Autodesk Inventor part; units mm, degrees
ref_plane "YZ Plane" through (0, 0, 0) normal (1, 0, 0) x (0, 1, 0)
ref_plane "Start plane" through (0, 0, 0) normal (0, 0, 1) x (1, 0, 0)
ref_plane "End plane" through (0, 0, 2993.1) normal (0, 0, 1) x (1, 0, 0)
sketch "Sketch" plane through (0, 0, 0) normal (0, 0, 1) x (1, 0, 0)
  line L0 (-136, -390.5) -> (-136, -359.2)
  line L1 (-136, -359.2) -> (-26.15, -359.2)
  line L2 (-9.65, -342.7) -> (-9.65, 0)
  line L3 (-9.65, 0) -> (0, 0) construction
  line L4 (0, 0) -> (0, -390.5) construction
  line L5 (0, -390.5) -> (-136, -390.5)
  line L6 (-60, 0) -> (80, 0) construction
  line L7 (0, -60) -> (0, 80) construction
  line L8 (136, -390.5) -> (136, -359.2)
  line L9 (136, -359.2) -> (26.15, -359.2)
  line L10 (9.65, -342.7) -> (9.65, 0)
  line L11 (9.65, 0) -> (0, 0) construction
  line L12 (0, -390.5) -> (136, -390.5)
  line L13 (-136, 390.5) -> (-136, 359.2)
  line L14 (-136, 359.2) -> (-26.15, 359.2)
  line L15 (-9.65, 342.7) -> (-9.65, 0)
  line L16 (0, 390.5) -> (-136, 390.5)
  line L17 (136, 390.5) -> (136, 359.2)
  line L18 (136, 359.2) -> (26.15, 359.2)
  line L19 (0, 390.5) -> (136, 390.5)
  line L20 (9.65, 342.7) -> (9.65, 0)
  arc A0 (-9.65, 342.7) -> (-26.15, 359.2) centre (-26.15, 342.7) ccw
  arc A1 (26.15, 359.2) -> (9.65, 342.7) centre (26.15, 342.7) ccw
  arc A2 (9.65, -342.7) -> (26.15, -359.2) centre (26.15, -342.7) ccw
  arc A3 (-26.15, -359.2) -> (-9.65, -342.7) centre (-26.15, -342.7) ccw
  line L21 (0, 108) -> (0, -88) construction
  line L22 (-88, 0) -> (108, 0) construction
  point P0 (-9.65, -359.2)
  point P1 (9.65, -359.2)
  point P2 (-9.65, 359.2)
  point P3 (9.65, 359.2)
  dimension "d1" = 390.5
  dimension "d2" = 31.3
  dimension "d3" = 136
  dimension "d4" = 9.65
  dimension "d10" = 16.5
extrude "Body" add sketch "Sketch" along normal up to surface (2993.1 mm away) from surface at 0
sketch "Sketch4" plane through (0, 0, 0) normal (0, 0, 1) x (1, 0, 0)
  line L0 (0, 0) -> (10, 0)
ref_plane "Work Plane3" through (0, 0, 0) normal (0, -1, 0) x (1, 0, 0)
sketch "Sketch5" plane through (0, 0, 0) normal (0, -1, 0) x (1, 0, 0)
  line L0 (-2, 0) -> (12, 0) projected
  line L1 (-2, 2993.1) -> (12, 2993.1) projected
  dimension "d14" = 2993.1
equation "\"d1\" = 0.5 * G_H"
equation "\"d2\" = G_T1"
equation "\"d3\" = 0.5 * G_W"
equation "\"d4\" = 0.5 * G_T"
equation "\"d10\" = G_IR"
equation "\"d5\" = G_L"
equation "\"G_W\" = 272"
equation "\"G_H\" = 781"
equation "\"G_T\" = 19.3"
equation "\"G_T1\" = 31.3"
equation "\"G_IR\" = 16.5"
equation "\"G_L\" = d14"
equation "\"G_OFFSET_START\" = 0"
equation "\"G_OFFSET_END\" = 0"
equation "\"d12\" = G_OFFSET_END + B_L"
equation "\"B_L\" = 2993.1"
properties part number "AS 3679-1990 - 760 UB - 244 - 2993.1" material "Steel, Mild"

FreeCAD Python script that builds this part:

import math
import FreeCAD as App
import Part
import Sketcher
from FreeCAD import Vector
Q = App.Units.Quantity

doc = App.newDocument("Part")
body = doc.addObject("PartDesign::Body", "Body")

# Sketch on XY plane
sketch1 = body.newObject("Sketcher::SketchObject", "Sketch")
sketch1.AttachmentSupport = (doc.getObject("XY_Plane"), [""])
sketch1.MapMode = "FlatFace"
sketch1.addGeometry([
    Part.LineSegment(Vector(-136, -359.2, 0), Vector(-136, -390.5, 0)),  # 0
    Part.LineSegment(Vector(-136, -390.5, 0), Vector(136, -390.5, 0)),  # 1
    Part.LineSegment(Vector(136, -390.5, 0), Vector(136, -359.2, 0)),  # 2
    Part.LineSegment(Vector(136, -359.2, 0), Vector(26.15, -359.2, 0)),  # 3
    Part.ArcOfCircle(Part.Circle(Vector(26.15, -342.7, 0), Vector(0, 0, 1), 16.5), math.radians(180), math.radians(270)),  # 4
    Part.LineSegment(Vector(9.65, -342.7, 0), Vector(9.65, 342.7, 0)),  # 5
    Part.ArcOfCircle(Part.Circle(Vector(26.15, 342.7, 0), Vector(0, 0, 1), 16.5), math.radians(90), math.radians(180)),  # 6
    Part.LineSegment(Vector(26.15, 359.2, 0), Vector(136, 359.2, 0)),  # 7
    Part.LineSegment(Vector(136, 359.2, 0), Vector(136, 390.5, 0)),  # 8
    Part.LineSegment(Vector(136, 390.5, 0), Vector(-136, 390.5, 0)),  # 9
    Part.LineSegment(Vector(-136, 390.5, 0), Vector(-136, 359.2, 0)),  # 10
    Part.LineSegment(Vector(-136, 359.2, 0), Vector(-26.15, 359.2, 0)),  # 11
    Part.ArcOfCircle(Part.Circle(Vector(-26.15, 342.7, 0), Vector(0, 0, 1), 16.5), math.radians(0), math.radians(90)),  # 12
    Part.LineSegment(Vector(-9.65, 342.7, 0), Vector(-9.65, -342.7, 0)),  # 13
    Part.ArcOfCircle(Part.Circle(Vector(-26.15, -342.7, 0), Vector(0, 0, 1), 16.5), math.radians(-90), math.radians(0)),  # 14
    Part.LineSegment(Vector(-26.15, -359.2, 0), Vector(-136, -359.2, 0)),  # 15
], False)
sketch1.addConstraint([
    Sketcher.Constraint("Coincident", 0, 2, 1, 1),
    Sketcher.Constraint("Coincident", 1, 2, 2, 1),
    Sketcher.Constraint("Coincident", 2, 2, 3, 1),
    Sketcher.Constraint("Tangent", 3, 2, 4, 2),
    Sketcher.Constraint("Tangent", 4, 1, 5, 1),
    Sketcher.Constraint("Tangent", 5, 2, 6, 2),
    Sketcher.Constraint("Tangent", 6, 1, 7, 1),
    Sketcher.Constraint("Coincident", 7, 2, 8, 1),
    Sketcher.Constraint("Coincident", 8, 2, 9, 1),
    Sketcher.Constraint("Coincident", 9, 2, 10, 1),
    Sketcher.Constraint("Coincident", 10, 2, 11, 1),
    Sketcher.Constraint("Tangent", 11, 2, 12, 2),
    Sketcher.Constraint("Tangent", 12, 1, 13, 1),
    Sketcher.Constraint("Tangent", 13, 2, 14, 2),
    Sketcher.Constraint("Tangent", 14, 1, 15, 1),
    Sketcher.Constraint("Coincident", 15, 2, 0, 1),
    Sketcher.Constraint("Vertical", 0),
    Sketcher.Constraint("Horizontal", 1),
    Sketcher.Constraint("Vertical", 2),
    Sketcher.Constraint("Horizontal", 3),
    Sketcher.Constraint("Vertical", 5),
    Sketcher.Constraint("Horizontal", 7),
    Sketcher.Constraint("Vertical", 8),
    Sketcher.Constraint("Horizontal", 9),
    Sketcher.Constraint("Vertical", 10),
    Sketcher.Constraint("Horizontal", 11),
    Sketcher.Constraint("Vertical", 13),
    Sketcher.Constraint("Horizontal", 15),
    Sketcher.Constraint("Equal", 4, 6),
    Sketcher.Constraint("Equal", 6, 12),
    Sketcher.Constraint("Equal", 12, 14),
    Sketcher.Constraint("Symmetric", 4, 3, 12, 3, -1, 1),
    Sketcher.Constraint("Symmetric", 0, 2, 8, 2, -1, 1),
    Sketcher.Constraint("Symmetric", 7, 2, 10, 2, -2),
    Sketcher.Constraint("Symmetric", 2, 2, 15, 2, -2),
    Sketcher.Constraint("Radius", 4, Q("16.5 mm")),
    Sketcher.Constraint("DistanceY", 0, 2, 0, 1, Q("31.3 mm")),
    Sketcher.Constraint("DistanceX", 0, 2, -1, 1, Q("136 mm")),
    Sketcher.Constraint("DistanceY", 0, 2, -1, 1, Q("390.5 mm")),
    Sketcher.Constraint("DistanceX", -1, 1, 4, 1, Q("9.65 mm")),
])
pad1 = body.newObject("PartDesign::Pad", "Pad")
pad1.Profile = sketch1
pad1.Length = 2993.1

doc.recompute()
